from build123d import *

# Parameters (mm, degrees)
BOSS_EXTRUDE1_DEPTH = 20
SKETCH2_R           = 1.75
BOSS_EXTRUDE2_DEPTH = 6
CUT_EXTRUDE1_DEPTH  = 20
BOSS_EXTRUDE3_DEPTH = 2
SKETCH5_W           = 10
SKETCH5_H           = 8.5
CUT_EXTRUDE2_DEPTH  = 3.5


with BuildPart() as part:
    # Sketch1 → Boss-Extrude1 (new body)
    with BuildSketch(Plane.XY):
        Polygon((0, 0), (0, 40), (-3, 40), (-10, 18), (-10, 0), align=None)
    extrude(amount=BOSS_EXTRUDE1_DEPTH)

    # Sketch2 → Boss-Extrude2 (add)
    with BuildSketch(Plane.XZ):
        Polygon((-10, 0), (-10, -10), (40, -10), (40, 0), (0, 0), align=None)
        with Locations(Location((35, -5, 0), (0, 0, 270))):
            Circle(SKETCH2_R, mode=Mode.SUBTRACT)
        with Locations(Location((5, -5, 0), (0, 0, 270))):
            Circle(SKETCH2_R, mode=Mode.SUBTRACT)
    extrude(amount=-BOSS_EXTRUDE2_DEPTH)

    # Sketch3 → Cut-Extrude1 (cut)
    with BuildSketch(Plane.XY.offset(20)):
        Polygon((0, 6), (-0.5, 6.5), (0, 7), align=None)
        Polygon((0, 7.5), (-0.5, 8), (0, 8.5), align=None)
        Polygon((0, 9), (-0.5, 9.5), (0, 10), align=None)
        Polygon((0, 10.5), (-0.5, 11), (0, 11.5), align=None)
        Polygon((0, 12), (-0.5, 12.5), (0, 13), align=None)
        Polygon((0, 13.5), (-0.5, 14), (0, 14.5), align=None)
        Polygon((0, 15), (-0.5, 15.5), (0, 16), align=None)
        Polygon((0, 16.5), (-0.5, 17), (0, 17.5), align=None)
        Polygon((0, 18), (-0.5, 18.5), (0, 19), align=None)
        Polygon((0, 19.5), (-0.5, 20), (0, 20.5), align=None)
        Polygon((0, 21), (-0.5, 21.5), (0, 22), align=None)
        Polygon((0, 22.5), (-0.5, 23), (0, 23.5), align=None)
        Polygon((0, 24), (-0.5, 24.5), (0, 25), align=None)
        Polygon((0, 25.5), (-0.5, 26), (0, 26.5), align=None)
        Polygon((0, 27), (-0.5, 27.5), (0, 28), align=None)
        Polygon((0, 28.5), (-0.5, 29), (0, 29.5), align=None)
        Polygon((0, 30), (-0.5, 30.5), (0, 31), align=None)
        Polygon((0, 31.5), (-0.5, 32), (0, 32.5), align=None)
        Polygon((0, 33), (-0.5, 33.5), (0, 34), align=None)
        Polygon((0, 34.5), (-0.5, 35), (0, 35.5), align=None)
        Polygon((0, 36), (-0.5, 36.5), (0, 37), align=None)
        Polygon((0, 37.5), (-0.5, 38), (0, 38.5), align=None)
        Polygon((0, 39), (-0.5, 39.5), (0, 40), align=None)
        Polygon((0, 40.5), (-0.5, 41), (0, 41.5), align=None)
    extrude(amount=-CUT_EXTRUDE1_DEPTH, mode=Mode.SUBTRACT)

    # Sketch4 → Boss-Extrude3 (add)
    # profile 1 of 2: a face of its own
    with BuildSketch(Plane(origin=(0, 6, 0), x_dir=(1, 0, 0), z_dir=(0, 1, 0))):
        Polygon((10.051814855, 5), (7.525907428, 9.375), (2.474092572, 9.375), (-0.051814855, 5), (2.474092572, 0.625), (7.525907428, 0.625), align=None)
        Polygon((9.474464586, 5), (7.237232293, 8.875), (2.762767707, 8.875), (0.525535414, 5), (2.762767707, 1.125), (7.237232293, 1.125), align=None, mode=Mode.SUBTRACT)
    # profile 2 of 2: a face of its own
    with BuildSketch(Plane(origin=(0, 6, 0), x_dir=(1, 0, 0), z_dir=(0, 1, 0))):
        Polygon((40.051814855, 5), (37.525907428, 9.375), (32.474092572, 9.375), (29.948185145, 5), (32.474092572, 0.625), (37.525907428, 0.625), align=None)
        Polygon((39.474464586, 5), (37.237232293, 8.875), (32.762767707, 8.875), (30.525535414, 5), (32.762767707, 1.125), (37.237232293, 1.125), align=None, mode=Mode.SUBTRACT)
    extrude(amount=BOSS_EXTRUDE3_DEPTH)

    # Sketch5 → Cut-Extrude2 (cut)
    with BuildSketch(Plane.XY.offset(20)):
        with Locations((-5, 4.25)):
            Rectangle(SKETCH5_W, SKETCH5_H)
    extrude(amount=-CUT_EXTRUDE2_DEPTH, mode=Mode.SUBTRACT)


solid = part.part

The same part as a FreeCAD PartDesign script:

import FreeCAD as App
import Part
import Sketcher
Q = App.Units.Quantity


def add_polygon(sketch, points):
    """Adds a closed chain of lines whose ends are joined by coincident constraints."""
    first, n = sketch.GeometryCount, len(points)
    for a, b in zip(points, points[1:] + points[:1]):
        sketch.addGeometry(Part.LineSegment(App.Vector(*a, 0), App.Vector(*b, 0)), False)
    for i in range(n):
        sketch.addConstraint(Sketcher.Constraint("Coincident", first + i, 2, first + (i + 1) % n, 1))

doc = App.newDocument("Part")
params = doc.addObject("Spreadsheet::Sheet", "Params")
for row, (alias, value) in enumerate([
    ("sketch1_width", "3 mm"),
    ("sketch1_width2", "10 mm"),
    ("sketch1_height", "40 mm"),
    ("sketch1_height2", "18 mm"),
    ("pad1_length", "20 mm"),
    ("sketch2_diameter", "3.5 mm"),
    ("sketch2_width", "50 mm"),
    ("sketch2_height", "10 mm"),
    ("pad2_length", "6 mm"),
    ("sketch3_height", "1 mm"),
    ("pocket1_length", "20 mm"),
    ("pad3_length", "2 mm"),
    ("sketch5_width", "10 mm"),
    ("sketch5_height", "8.5 mm"),
    ("pocket2_length", "3.5 mm"),
], start=1):
    params.set(f"A{row}", alias)
    params.set(f"B{row}", "=" + value)
    params.setAlias(f"B{row}", alias)

body = doc.addObject("PartDesign::Body", "Body")

sketch1 = doc.addObject("Sketcher::SketchObject", "Sketch")
body.addObject(sketch1)
sketch1.AttachmentSupport = (doc.XY_Plane, [""])
sketch1.MapMode = "FlatFace"
add_polygon(sketch1, [(0, 0), (0, 40), (-3, 40), (-10, 18), (-10, 0)])
sketch1.addConstraint([
    Sketcher.Constraint("Vertical", 0),
    Sketcher.Constraint("Horizontal", 1),
    Sketcher.Constraint("Vertical", 3),
    Sketcher.Constraint("Horizontal", 4),
    Sketcher.Constraint("Coincident", 4, 2, -1, 1),
    Sketcher.Constraint("DistanceX", 1, 2, 1, 1, 3.0),
    Sketcher.Constraint("DistanceX", 4, 1, 4, 2, 10.0),
    Sketcher.Constraint("DistanceY", 0, 1, 0, 2, 40.0),
    Sketcher.Constraint("DistanceY", 3, 2, 3, 1, 18.0),
])
sketch1.setExpression("Constraints[10]", "Params.sketch1_width")
sketch1.setExpression("Constraints[11]", "Params.sketch1_width2")
sketch1.setExpression("Constraints[12]", "Params.sketch1_height")
sketch1.setExpression("Constraints[13]", "Params.sketch1_height2")
pad1 = doc.addObject("PartDesign::Pad", "Pad")
body.addObject(pad1)
pad1.Profile = sketch1
pad1.setExpression("Length", "Params.pad1_length")

sketch2 = doc.addObject("Sketcher::SketchObject", "Sketch001")
body.addObject(sketch2)
sketch2.AttachmentSupport = (doc.XZ_Plane, [""])
sketch2.MapMode = "FlatFace"
add_polygon(sketch2, [(-10, 0), (-10, -10), (40, -10), (40, 0)])
sketch2.addGeometry(Part.Circle(App.Vector(5, -5, 0), App.Vector(0, 0, 1), 1.8), False)
sketch2.addGeometry(Part.Circle(App.Vector(35, -5, 0), App.Vector(0, 0, 1), 1.8), False)
sketch2.addConstraint([
    Sketcher.Constraint("Vertical", 0),
    Sketcher.Constraint("Horizontal", 1),
    Sketcher.Constraint("Vertical", 2),
    Sketcher.Constraint("Horizontal", 3),
    Sketcher.Constraint("Equal", 4, 5),
    Sketcher.Constraint("PointOnObject", 2, 2, -1),
    Sketcher.Constraint("Horizontal", 4, 3, 5, 3),
    Sketcher.Constraint("Diameter", 4, 3.5),
    Sketcher.Constraint("DistanceX", 1, 1, 1, 2, 50.0),
    Sketcher.Constraint("DistanceY", 0, 2, 0, 1, 10.0),
    Sketcher.Constraint("DistanceX", -1, 1, 4, 3, 5.0),
    Sketcher.Constraint("DistanceY", 4, 3, -1, 1, 5.0),
    Sketcher.Constraint("DistanceX", -1, 1, 5, 3, 35.0),
    Sketcher.Constraint("DistanceX", 0, 2, -1, 1, 10.0),
])
sketch2.setExpression("Constraints[11]", "Params.sketch2_diameter")
sketch2.setExpression("Constraints[12]", "Params.sketch2_width")
sketch2.setExpression("Constraints[13]", "Params.sketch2_height")
pad2 = doc.addObject("PartDesign::Pad", "Pad001")
body.addObject(pad2)
pad2.Profile = sketch2
pad2.setExpression("Length", "Params.pad2_length")
pad2.Reversed = True

sketch3 = doc.addObject("Sketcher::SketchObject", "Sketch002")
body.addObject(sketch3)
sketch3.AttachmentSupport = (doc.XY_Plane, [""])
sketch3.MapMode = "FlatFace"
sketch3.AttachmentOffset = App.Placement(App.Vector(0, 0, 20), App.Rotation())
add_polygon(sketch3, [(-0.5, 6.5), (0, 6), (0, 7)])
add_polygon(sketch3, [(-0.5, 8), (0, 7.5), (0, 8.5)])
add_polygon(sketch3, [(-0.5, 9.5), (0, 9), (0, 10)])
add_polygon(sketch3, [(-0.5, 11), (0, 10.5), (0, 11.5)])
add_polygon(sketch3, [(-0.5, 12.5), (0, 12), (0, 13)])
add_polygon(sketch3, [(-0.5, 14), (0, 13.5), (0, 14.5)])
add_polygon(sketch3, [(-0.5, 15.5), (0, 15), (0, 16)])
add_polygon(sketch3, [(-0.5, 17), (0, 16.5), (0, 17.5)])
add_polygon(sketch3, [(-0.5, 18.5), (0, 18), (0, 19)])
add_polygon(sketch3, [(-0.5, 20), (0, 19.5), (0, 20.5)])
add_polygon(sketch3, [(-0.5, 21.5), (0, 21), (0, 22)])
add_polygon(sketch3, [(-0.5, 23), (0, 22.5), (0, 23.5)])
add_polygon(sketch3, [(-0.5, 24.5), (0, 24), (0, 25)])
add_polygon(sketch3, [(-0.5, 26), (0, 25.5), (0, 26.5)])
add_polygon(sketch3, [(-0.5, 27.5), (0, 27), (0, 28)])
add_polygon(sketch3, [(-0.5, 29), (0, 28.5), (0, 29.5)])
add_polygon(sketch3, [(-0.5, 30.5), (0, 30), (0, 31)])
add_polygon(sketch3, [(-0.5, 32), (0, 31.5), (0, 32.5)])
add_polygon(sketch3, [(-0.5, 33.5), (0, 33), (0, 34)])
add_polygon(sketch3, [(-0.5, 35), (0, 34.5), (0, 35.5)])
add_polygon(sketch3, [(-0.5, 36.5), (0, 36), (0, 37)])
add_polygon(sketch3, [(-0.5, 38), (0, 37.5), (0, 38.5)])
add_polygon(sketch3, [(-0.5, 39.5), (0, 39), (0, 40)])
add_polygon(sketch3, [(-0.5, 41), (0, 40.5), (0, 41.5)])
sketch3.addConstraint([
    Sketcher.Constraint("Vertical", 1),
    Sketcher.Constraint("Vertical", 4),
    Sketcher.Constraint("Vertical", 7),
    Sketcher.Constraint("Vertical", 10),
    Sketcher.Constraint("Vertical", 13),
    Sketcher.Constraint("Vertical", 16),
    Sketcher.Constraint("Vertical", 19),
    Sketcher.Constraint("Vertical", 22),
    Sketcher.Constraint("Vertical", 25),
    Sketcher.Constraint("Vertical", 28),
    Sketcher.Constraint("Vertical", 31),
    Sketcher.Constraint("Vertical", 34),
    Sketcher.Constraint("Vertical", 37),
    Sketcher.Constraint("Vertical", 40),
    Sketcher.Constraint("Vertical", 43),
    Sketcher.Constraint("Vertical", 46),
    Sketcher.Constraint("Vertical", 49),
    Sketcher.Constraint("Vertical", 52),
    Sketcher.Constraint("Vertical", 55),
    Sketcher.Constraint("Vertical", 58),
    Sketcher.Constraint("Vertical", 61),
    Sketcher.Constraint("Vertical", 64),
    Sketcher.Constraint("Vertical", 67),
    Sketcher.Constraint("Vertical", 70),
    Sketcher.Constraint("PointOnObject", 0, 2, -2),
    Sketcher.Constraint("PointOnObject", 3, 2, -2),
    Sketcher.Constraint("PointOnObject", 6, 2, -2),
    Sketcher.Constraint("PointOnObject", 9, 2, -2),
    Sketcher.Constraint("PointOnObject", 12, 2, -2),
    Sketcher.Constraint("PointOnObject", 15, 2, -2),
    Sketcher.Constraint("PointOnObject", 18, 2, -2),
    Sketcher.Constraint("PointOnObject", 21, 2, -2),
    Sketcher.Constraint("PointOnObject", 24, 2, -2),
    Sketcher.Constraint("PointOnObject", 27, 2, -2),
    Sketcher.Constraint("PointOnObject", 30, 2, -2),
    Sketcher.Constraint("PointOnObject", 33, 2, -2),
    Sketcher.Constraint("PointOnObject", 36, 2, -2),
    Sketcher.Constraint("PointOnObject", 39, 2, -2),
    Sketcher.Constraint("PointOnObject", 42, 2, -2),
    Sketcher.Constraint("PointOnObject", 45, 2, -2),
    Sketcher.Constraint("PointOnObject", 48, 2, -2),
    Sketcher.Constraint("PointOnObject", 51, 2, -2),
    Sketcher.Constraint("PointOnObject", 54, 2, -2),
    Sketcher.Constraint("PointOnObject", 57, 2, -2),
    Sketcher.Constraint("PointOnObject", 60, 2, -2),
    Sketcher.Constraint("PointOnObject", 63, 2, -2),
    Sketcher.Constraint("PointOnObject", 66, 2, -2),
    Sketcher.Constraint("PointOnObject", 69, 2, -2),
    Sketcher.Constraint("Perpendicular", 0, 2),
    Sketcher.Constraint("Perpendicular", 2, 3),
    Sketcher.Constraint("Perpendicular", 3, 5),
    Sketcher.Constraint("Perpendicular", 5, 6),
    Sketcher.Constraint("Perpendicular", 6, 8),
    Sketcher.Constraint("Perpendicular", 8, 9),
    Sketcher.Constraint("Perpendicular", 9, 11),
    Sketcher.Constraint("Perpendicular", 11, 12),
    Sketcher.Constraint("Perpendicular", 12, 14),
    Sketcher.Constraint("Perpendicular", 14, 15),
    Sketcher.Constraint("Perpendicular", 15, 17),
    Sketcher.Constraint("Perpendicular", 17, 18),
    Sketcher.Constraint("Perpendicular", 18, 20),
    Sketcher.Constraint("Perpendicular", 20, 21),
    Sketcher.Constraint("Perpendicular", 21, 23),
    Sketcher.Constraint("Perpendicular", 23, 24),
    Sketcher.Constraint("Perpendicular", 24, 26),
    Sketcher.Constraint("Perpendicular", 26, 27),
    Sketcher.Constraint("Perpendicular", 27, 29),
    Sketcher.Constraint("Perpendicular", 29, 30),
    Sketcher.Constraint("Perpendicular", 30, 32),
    Sketcher.Constraint("Perpendicular", 32, 33),
    Sketcher.Constraint("Perpendicular", 33, 35),
    Sketcher.Constraint("Perpendicular", 35, 36),
    Sketcher.Constraint("Perpendicular", 36, 38),
    Sketcher.Constraint("Perpendicular", 38, 39),
    Sketcher.Constraint("Perpendicular", 39, 41),
    Sketcher.Constraint("Perpendicular", 41, 42),
    Sketcher.Constraint("Perpendicular", 42, 44),
    Sketcher.Constraint("Perpendicular", 44, 45),
    Sketcher.Constraint("Perpendicular", 45, 47),
    Sketcher.Constraint("Perpendicular", 47, 48),
    Sketcher.Constraint("Perpendicular", 48, 50),
    Sketcher.Constraint("Perpendicular", 50, 51),
    Sketcher.Constraint("Perpendicular", 51, 53),
    Sketcher.Constraint("Perpendicular", 53, 54),
    Sketcher.Constraint("Perpendicular", 54, 56),
    Sketcher.Constraint("Perpendicular", 56, 57),
    Sketcher.Constraint("Perpendicular", 57, 59),
    Sketcher.Constraint("Perpendicular", 59, 60),
    Sketcher.Constraint("Perpendicular", 60, 62),
    Sketcher.Constraint("Perpendicular", 62, 63),
    Sketcher.Constraint("Perpendicular", 63, 65),
    Sketcher.Constraint("Perpendicular", 65, 66),
    Sketcher.Constraint("Perpendicular", 66, 68),
    Sketcher.Constraint("Perpendicular", 68, 69),
    Sketcher.Constraint("Perpendicular", 69, 71),
    Sketcher.Constraint("Vertical", 2, 2, 5, 2),
    Sketcher.Constraint("Vertical", 5, 2, 8, 2),
    Sketcher.Constraint("Vertical", 8, 2, 11, 2),
    Sketcher.Constraint("Vertical", 11, 2, 14, 2),
    Sketcher.Constraint("Vertical", 14, 2, 17, 2),
    Sketcher.Constraint("Vertical", 17, 2, 20, 2),
    Sketcher.Constraint("Vertical", 20, 2, 23, 2),
    Sketcher.Constraint("Vertical", 23, 2, 26, 2),
    Sketcher.Constraint("Vertical", 26, 2, 29, 2),
    Sketcher.Constraint("Vertical", 29, 2, 32, 2),
    Sketcher.Constraint("Vertical", 32, 2, 35, 2),
    Sketcher.Constraint("Vertical", 35, 2, 38, 2),
    Sketcher.Constraint("Vertical", 38, 2, 41, 2),
    Sketcher.Constraint("Vertical", 41, 2, 44, 2),
    Sketcher.Constraint("Vertical", 44, 2, 47, 2),
    Sketcher.Constraint("Vertical", 47, 2, 50, 2),
    Sketcher.Constraint("Vertical", 50, 2, 53, 2),
    Sketcher.Constraint("Vertical", 53, 2, 56, 2),
    Sketcher.Constraint("Vertical", 56, 2, 59, 2),
    Sketcher.Constraint("Vertical", 59, 2, 62, 2),
    Sketcher.Constraint("Vertical", 62, 2, 65, 2),
    Sketcher.Constraint("Vertical", 65, 2, 68, 2),
    Sketcher.Constraint("Vertical", 68, 2, 71, 2),
    Sketcher.Constraint("Equal", 0, 2),
    Sketcher.Constraint("DistanceY", 1, 1, 1, 2, 1.0),
    Sketcher.Constraint("DistanceY", -1, 1, 0, 2, 6.0),
    Sketcher.Constraint("DistanceY", -1, 1, 5, 2, 8.0),
    Sketcher.Constraint("DistanceY", -1, 1, 6, 2, 9.0),
    Sketcher.Constraint("DistanceY", -1, 1, 11, 2, 11.0),
    Sketcher.Constraint("DistanceY", -1, 1, 12, 2, 12.0),
    Sketcher.Constraint("DistanceY", -1, 1, 17, 2, 14.0),
    Sketcher.Constraint("DistanceY", -1, 1, 18, 2, 15.0),
    Sketcher.Constraint("DistanceY", -1, 1, 23, 2, 17.0),
    Sketcher.Constraint("DistanceY", -1, 1, 24, 2, 18.0),
    Sketcher.Constraint("DistanceY", -1, 1, 29, 2, 20.0),
    Sketcher.Constraint("DistanceY", -1, 1, 30, 2, 21.0),
    Sketcher.Constraint("DistanceY", -1, 1, 35, 2, 23.0),
    Sketcher.Constraint("DistanceY", -1, 1, 36, 2, 24.0),
    Sketcher.Constraint("DistanceY", -1, 1, 41, 2, 26.0),
    Sketcher.Constraint("DistanceY", -1, 1, 42, 2, 27.0),
    Sketcher.Constraint("DistanceY", -1, 1, 47, 2, 29.0),
    Sketcher.Constraint("DistanceY", -1, 1, 48, 2, 30.0),
    Sketcher.Constraint("DistanceY", -1, 1, 53, 2, 32.0),
    Sketcher.Constraint("DistanceY", -1, 1, 54, 2, 33.0),
    Sketcher.Constraint("DistanceY", -1, 1, 59, 2, 35.0),
    Sketcher.Constraint("DistanceY", -1, 1, 60, 2, 36.0),
    Sketcher.Constraint("DistanceY", -1, 1, 65, 2, 38.0),
    Sketcher.Constraint("DistanceY", -1, 1, 66, 2, 39.0),
    Sketcher.Constraint("DistanceY", -1, 1, 71, 2, 41.0),
])
sketch3.setExpression("Constraints[191]", "Params.sketch3_height")
pocket1 = doc.addObject("PartDesign::Pocket", "Pocket")
body.addObject(pocket1)
pocket1.Profile = sketch3
pocket1.setExpression("Length", "Params.pocket1_length")

sketch4 = doc.addObject("Sketcher::SketchObject", "Sketch003")
body.addObject(sketch4)
sketch4.AttachmentSupport = (doc.XZ_Plane, [""])
sketch4.MapMode = "FlatFace"
sketch4.AttachmentOffset = App.Placement(App.Vector(0, 0, -6), App.Rotation())
add_polygon(sketch4, [(10.1, -5), (7.5, -9.4), (2.5, -9.4), (-0.1, -5), (2.5, -0.6), (7.5, -0.6)])
add_polygon(sketch4, [(7.2, -8.9), (9.5, -5), (7.2, -1.1), (2.8, -1.1), (0.5, -5), (2.8, -8.9)])
add_polygon(sketch4, [(40.1, -5), (37.5, -9.4), (32.5, -9.4), (29.9, -5), (32.5, -0.6), (37.5, -0.6)])
add_polygon(sketch4, [(37.2, -8.9), (39.5, -5), (37.2, -1.1), (32.8, -1.1), (30.5, -5), (32.8, -8.9)])
sketch4.addConstraint([
    Sketcher.Constraint("Horizontal", 1),
    Sketcher.Constraint("Horizontal", 4),
    Sketcher.Constraint("Horizontal", 8),
    Sketcher.Constraint("Horizontal", 11),
    Sketcher.Constraint("Horizontal", 13),
    Sketcher.Constraint("Horizontal", 16),
    Sketcher.Constraint("Horizontal", 20),
    Sketcher.Constraint("Horizontal", 23),
    Sketcher.Constraint("Parallel", 0, 3),
    Sketcher.Constraint("Parallel", 2, 5),
    Sketcher.Constraint("Parallel", 3, 6),
    Sketcher.Constraint("Parallel", 5, 7),
    Sketcher.Constraint("Parallel", 6, 9),
    Sketcher.Constraint("Parallel", 7, 10),
    Sketcher.Constraint("Parallel", 9, 12),
    Sketcher.Constraint("Parallel", 10, 14),
    Sketcher.Constraint("Parallel", 12, 15),
    Sketcher.Constraint("Parallel", 14, 17),
    Sketcher.Constraint("Parallel", 15, 18),
    Sketcher.Constraint("Parallel", 17, 19),
    Sketcher.Constraint("Parallel", 18, 21),
    Sketcher.Constraint("Parallel", 19, 22),
    Sketcher.Constraint("Horizontal", 2, 2, 5, 2),
    Sketcher.Constraint("Horizontal", 5, 2, 6, 2),
    Sketcher.Constraint("Horizontal", 6, 2, 9, 2),
    Sketcher.Constraint("Horizontal", 1, 2, 12, 2),
    Sketcher.Constraint("Horizontal", 9, 2, 14, 2),
    Sketcher.Constraint("Horizontal", 4, 2, 15, 2),
    Sketcher.Constraint("Horizontal", 14, 2, 17, 2),
    Sketcher.Constraint("Horizontal", 17, 2, 18, 2),
    Sketcher.Constraint("Horizontal", 8, 2, 19, 2),
    Sketcher.Constraint("Horizontal", 18, 2, 21, 2),
    Sketcher.Constraint("Horizontal", 11, 2, 22, 2),
    Sketcher.Constraint("Vertical", 1, 2, 3, 2),
    Sketcher.Constraint("Vertical", 0, 2, 4, 2),
    Sketcher.Constraint("Vertical", 8, 2, 10, 2),
    Sketcher.Constraint("Equal", 4, 13),
    Sketcher.Constraint("Equal", 11, 20),
    Sketcher.Constraint("Angle", 0, Q("-120 deg")),
    Sketcher.Constraint("DistanceY", 2, 2, -1, 1, 5.0),
    Sketcher.Constraint("DistanceX", 0, 2, 12, 2, 30.0),
    Sketcher.Constraint("DistanceY", 7, 2, 4, 2, 0.5),
    Sketcher.Constraint("DistanceY", 1, 2, 3, 2, 8.75),
    Sketcher.Constraint("DistanceX", 1, 2, 1, 1, 5.051815),
    Sketcher.Constraint("DistanceX", 8, 2, 8, 1, 4.474465),
    Sketcher.Constraint("DistanceX", 6, 2, 5, 2, 0.57735),
    Sketcher.Constraint("DistanceX", 18, 2, 17, 2, 0.57735),
    Sketcher.Constraint("DistanceX", -1, 1, 0, 2, 7.525907),
])
pad3 = doc.addObject("PartDesign::Pad", "Pad002")
body.addObject(pad3)
pad3.Profile = sketch4
pad3.setExpression("Length", "Params.pad3_length")
pad3.Reversed = True

sketch5 = doc.addObject("Sketcher::SketchObject", "Sketch004")
body.addObject(sketch5)
sketch5.AttachmentSupport = (doc.XY_Plane, [""])
sketch5.MapMode = "FlatFace"
sketch5.AttachmentOffset = App.Placement(App.Vector(0, 0, 20), App.Rotation())
add_polygon(sketch5, [(-10, 8), (-10, 0), (0, 0), (0, 8)])
sketch5.addConstraint([
    Sketcher.Constraint("Vertical", 0),
    Sketcher.Constraint("Horizontal", 1),
    Sketcher.Constraint("Vertical", 2),
    Sketcher.Constraint("Horizontal", 3),
    Sketcher.Constraint("Coincident", 1, 2, -1, 1),
    Sketcher.Constraint("DistanceX", 1, 1, 1, 2, 10.0),
    Sketcher.Constraint("DistanceY", 0, 2, 0, 1, 8.5),
])
sketch5.setExpression("Constraints[9]", "Params.sketch5_width")
sketch5.setExpression("Constraints[10]", "Params.sketch5_height")
pocket2 = doc.addObject("PartDesign::Pocket", "Pocket001")
body.addObject(pocket2)
pocket2.Profile = sketch5
pocket2.setExpression("Length", "Params.pocket2_length")

doc.recompute()
